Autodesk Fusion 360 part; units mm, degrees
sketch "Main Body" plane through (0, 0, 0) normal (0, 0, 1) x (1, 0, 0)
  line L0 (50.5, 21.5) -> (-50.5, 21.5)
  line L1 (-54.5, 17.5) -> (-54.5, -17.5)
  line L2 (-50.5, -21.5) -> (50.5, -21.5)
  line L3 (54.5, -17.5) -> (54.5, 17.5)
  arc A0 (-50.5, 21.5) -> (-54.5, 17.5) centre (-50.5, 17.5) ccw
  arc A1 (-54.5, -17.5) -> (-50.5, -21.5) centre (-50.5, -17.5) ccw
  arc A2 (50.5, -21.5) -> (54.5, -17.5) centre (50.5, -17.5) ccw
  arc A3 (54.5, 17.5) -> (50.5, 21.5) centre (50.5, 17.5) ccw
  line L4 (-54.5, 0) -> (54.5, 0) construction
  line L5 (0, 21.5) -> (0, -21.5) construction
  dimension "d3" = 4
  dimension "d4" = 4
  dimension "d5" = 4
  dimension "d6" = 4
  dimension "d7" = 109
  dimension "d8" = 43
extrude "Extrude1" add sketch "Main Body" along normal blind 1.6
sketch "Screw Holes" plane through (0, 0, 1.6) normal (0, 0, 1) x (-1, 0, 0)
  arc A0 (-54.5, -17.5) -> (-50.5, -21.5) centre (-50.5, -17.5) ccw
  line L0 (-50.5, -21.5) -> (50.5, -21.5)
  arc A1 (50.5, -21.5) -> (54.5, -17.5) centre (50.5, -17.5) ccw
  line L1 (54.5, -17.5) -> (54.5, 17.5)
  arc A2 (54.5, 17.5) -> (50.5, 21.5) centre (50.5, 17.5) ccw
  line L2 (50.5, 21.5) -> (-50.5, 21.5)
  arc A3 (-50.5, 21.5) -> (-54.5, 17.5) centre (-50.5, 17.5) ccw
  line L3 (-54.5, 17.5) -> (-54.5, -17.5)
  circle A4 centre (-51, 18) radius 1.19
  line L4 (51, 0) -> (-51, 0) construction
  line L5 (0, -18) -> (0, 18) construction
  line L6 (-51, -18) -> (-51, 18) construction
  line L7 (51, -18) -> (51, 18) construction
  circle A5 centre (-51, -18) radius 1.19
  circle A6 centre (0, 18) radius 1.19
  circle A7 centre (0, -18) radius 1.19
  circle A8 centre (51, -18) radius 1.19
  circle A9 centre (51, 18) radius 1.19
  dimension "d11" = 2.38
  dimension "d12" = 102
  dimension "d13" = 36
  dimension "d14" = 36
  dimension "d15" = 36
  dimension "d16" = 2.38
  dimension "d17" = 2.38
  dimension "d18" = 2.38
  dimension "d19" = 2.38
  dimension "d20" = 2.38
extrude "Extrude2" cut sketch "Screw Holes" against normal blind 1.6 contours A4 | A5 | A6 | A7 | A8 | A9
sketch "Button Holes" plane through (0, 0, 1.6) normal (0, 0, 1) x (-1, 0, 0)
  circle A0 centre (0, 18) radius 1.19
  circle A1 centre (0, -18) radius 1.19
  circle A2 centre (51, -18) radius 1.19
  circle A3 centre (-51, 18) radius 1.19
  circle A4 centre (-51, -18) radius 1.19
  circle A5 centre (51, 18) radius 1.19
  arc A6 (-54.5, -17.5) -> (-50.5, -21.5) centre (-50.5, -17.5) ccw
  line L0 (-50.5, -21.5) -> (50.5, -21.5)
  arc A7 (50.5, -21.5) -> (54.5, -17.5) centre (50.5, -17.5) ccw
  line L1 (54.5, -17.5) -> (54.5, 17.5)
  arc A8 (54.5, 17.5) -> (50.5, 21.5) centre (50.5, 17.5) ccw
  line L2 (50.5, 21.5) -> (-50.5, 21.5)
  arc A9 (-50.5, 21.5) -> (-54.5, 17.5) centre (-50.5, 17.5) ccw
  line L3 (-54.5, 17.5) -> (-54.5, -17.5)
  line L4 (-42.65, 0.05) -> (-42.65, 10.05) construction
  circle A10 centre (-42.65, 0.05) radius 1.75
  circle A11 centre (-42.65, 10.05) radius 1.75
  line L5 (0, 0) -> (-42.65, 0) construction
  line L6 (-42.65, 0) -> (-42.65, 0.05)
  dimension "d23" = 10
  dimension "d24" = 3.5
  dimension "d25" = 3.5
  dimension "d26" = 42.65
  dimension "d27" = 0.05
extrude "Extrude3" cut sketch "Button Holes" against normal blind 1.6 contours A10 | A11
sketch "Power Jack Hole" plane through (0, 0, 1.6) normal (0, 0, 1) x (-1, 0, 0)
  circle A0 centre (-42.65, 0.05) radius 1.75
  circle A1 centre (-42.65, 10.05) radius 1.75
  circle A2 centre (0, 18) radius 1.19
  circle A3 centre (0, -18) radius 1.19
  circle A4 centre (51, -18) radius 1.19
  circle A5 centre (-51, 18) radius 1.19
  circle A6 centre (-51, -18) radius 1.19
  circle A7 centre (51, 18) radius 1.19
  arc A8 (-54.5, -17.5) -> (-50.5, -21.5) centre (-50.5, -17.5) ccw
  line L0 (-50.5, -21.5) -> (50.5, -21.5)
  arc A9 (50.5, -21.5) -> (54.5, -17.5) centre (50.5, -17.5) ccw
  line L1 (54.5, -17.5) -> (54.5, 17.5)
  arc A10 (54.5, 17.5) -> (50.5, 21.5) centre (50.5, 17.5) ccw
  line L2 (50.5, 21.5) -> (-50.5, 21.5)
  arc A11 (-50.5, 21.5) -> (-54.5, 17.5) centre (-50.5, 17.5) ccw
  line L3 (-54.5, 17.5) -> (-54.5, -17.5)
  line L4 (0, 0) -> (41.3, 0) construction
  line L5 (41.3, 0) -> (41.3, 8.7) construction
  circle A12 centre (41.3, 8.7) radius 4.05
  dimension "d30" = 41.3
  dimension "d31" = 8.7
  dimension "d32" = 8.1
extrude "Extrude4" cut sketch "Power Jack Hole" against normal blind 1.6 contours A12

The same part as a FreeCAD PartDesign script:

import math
import FreeCAD as App
import Part
import Sketcher
from FreeCAD import Vector

doc = App.newDocument("Part")
body = doc.addObject("PartDesign::Body", "Body")

sketch1 = body.newObject("Sketcher::SketchObject", "Sketch")
sketch1.AttachmentSupport = (doc.getObject("XY_Plane"), [""])
sketch1.MapMode = "FlatFace"
sketch1.addGeometry([
    Part.ArcOfCircle(Part.Circle(Vector(50.5, 17.5, 0), Vector(0, 0, 1), 4), math.radians(0), math.radians(90)),
    Part.LineSegment(Vector(50.5, 21.5, 0), Vector(-50.5, 21.5, 0)),
    Part.ArcOfCircle(Part.Circle(Vector(-50.5, 17.5, 0), Vector(0, 0, 1), 4), math.radians(90), math.radians(180)),
    Part.LineSegment(Vector(-54.5, 17.5, 0), Vector(-54.5, -17.5, 0)),
    Part.ArcOfCircle(Part.Circle(Vector(-50.5, -17.5, 0), Vector(0, 0, 1), 4), math.radians(180), math.radians(270)),
    Part.LineSegment(Vector(-50.5, -21.5, 0), Vector(50.5, -21.5, 0)),
    Part.ArcOfCircle(Part.Circle(Vector(50.5, -17.5, 0), Vector(0, 0, 1), 4), math.radians(-90), math.radians(0)),
    Part.LineSegment(Vector(54.5, -17.5, 0), Vector(54.5, 17.5, 0)),
], False)
sketch1.addConstraint([
    Sketcher.Constraint("Tangent", 0, 2, 1, 1),
    Sketcher.Constraint("Tangent", 1, 2, 2, 1),
    Sketcher.Constraint("Tangent", 2, 2, 3, 1),
    Sketcher.Constraint("Tangent", 3, 2, 4, 1),
    Sketcher.Constraint("Tangent", 4, 2, 5, 1),
    Sketcher.Constraint("Tangent", 5, 2, 6, 1),
    Sketcher.Constraint("Tangent", 6, 2, 7, 1),
    Sketcher.Constraint("Tangent", 7, 2, 0, 1),
    Sketcher.Constraint("Horizontal", 1),
    Sketcher.Constraint("Vertical", 3),
    Sketcher.Constraint("Horizontal", 5),
    Sketcher.Constraint("Vertical", 7),
    Sketcher.Constraint("Equal", 0, 2),
    Sketcher.Constraint("Equal", 2, 4),
    Sketcher.Constraint("Equal", 4, 6),
    Sketcher.Constraint("Symmetric", 0, 3, 4, 3, -1, 1),
    Sketcher.Constraint("Radius", 0, 4.0),
    Sketcher.Constraint("DistanceY", 4, 2, 1, 2, 43.0),
    Sketcher.Constraint("DistanceX", 1, 2, 1, 1, 101.0),
])
pad1 = body.newObject("PartDesign::Pad", "Pad")
pad1.Profile = sketch1
pad1.Length = 1.6

sketch2 = body.newObject("Sketcher::SketchObject", "Sketch001")
sketch2.AttachmentSupport = (doc.getObject("XY_Plane"), [""])
sketch2.MapMode = "FlatFace"
sketch2.AttachmentOffset = App.Placement(Vector(0, 0, 1.6), App.Rotation())
sketch2.addGeometry([
    Part.Circle(Vector(51, -18, 0), Vector(0, 0, 1), 1.2),
    Part.Circle(Vector(51, 18, 0), Vector(0, 0, 1), 1.2),
    Part.Circle(Vector(0, -18, 0), Vector(0, 0, 1), 1.2),
    Part.Circle(Vector(0, 18, 0), Vector(0, 0, 1), 1.2),
    Part.Circle(Vector(-51, 18, 0), Vector(0, 0, 1), 1.2),
    Part.Circle(Vector(-51, -18, 0), Vector(0, 0, 1), 1.2),
], False)
sketch2.addConstraint([
    Sketcher.Constraint("Equal", 0, 1),
    Sketcher.Constraint("Equal", 1, 2),
    Sketcher.Constraint("Equal", 2, 3),
    Sketcher.Constraint("Equal", 3, 4),
    Sketcher.Constraint("Equal", 4, 5),
    Sketcher.Constraint("Symmetric", 2, 3, 3, 3, -1, 1),
    Sketcher.Constraint("Symmetric", 0, 3, 4, 3, -1, 1),
    Sketcher.Constraint("Symmetric", 1, 3, 5, 3, -1, 1),
    Sketcher.Constraint("Symmetric", 1, 3, 4, 3, -2),
    Sketcher.Constraint("PointOnObject", 2, 3, -2),
    Sketcher.Constraint("Horizontal", 0, 3, 2, 3),
    Sketcher.Constraint("Diameter", 0, 2.38),
    Sketcher.Constraint("DistanceY", 0, 3, 1, 3, 36.0),
    Sketcher.Constraint("DistanceX", 4, 3, 1, 3, 102.0),
])
pocket1 = body.newObject("PartDesign::Pocket", "Pocket")
pocket1.Profile = sketch2
pocket1.Length = 1.6

sketch3 = body.newObject("Sketcher::SketchObject", "Sketch002")
sketch3.AttachmentSupport = (doc.getObject("XY_Plane"), [""])
sketch3.MapMode = "FlatFace"
sketch3.AttachmentOffset = App.Placement(Vector(0, 0, 1.6), App.Rotation())
sketch3.addGeometry([
    Part.Circle(Vector(42.6, -0.1, 0), Vector(0, 0, 1), 1.8),
    Part.Circle(Vector(42.6, -10.1, 0), Vector(0, 0, 1), 1.8),
], False)
sketch3.addConstraint([
    Sketcher.Constraint("Equal", 0, 1),
    Sketcher.Constraint("Vertical", 0, 3, 1, 3),
    Sketcher.Constraint("Diameter", 0, 3.5),
    Sketcher.Constraint("DistanceY", 1, 3, 0, 3, 10.0),
    Sketcher.Constraint("DistanceX", -1, 1, 0, 3, 42.65),
    Sketcher.Constraint("DistanceY", 0, 3, -1, 1, 0.05),
])
pocket2 = body.newObject("PartDesign::Pocket", "Pocket001")
pocket2.Profile = sketch3
pocket2.Length = 1.6

sketch4 = body.newObject("Sketcher::SketchObject", "Sketch003")
sketch4.AttachmentSupport = (doc.getObject("XY_Plane"), [""])
sketch4.MapMode = "FlatFace"
sketch4.AttachmentOffset = App.Placement(Vector(0, 0, 1.6), App.Rotation())
sketch4.addGeometry(Part.Circle(Vector(-41.3, -8.7, 0), Vector(0, 0, 1), 4), False)
sketch4.addConstraint([
    Sketcher.Constraint("Diameter", 0, 8.1),
    Sketcher.Constraint("DistanceX", 0, 3, -1, 1, 41.3),
    Sketcher.Constraint("DistanceY", 0, 3, -1, 1, 8.7),
])
pocket3 = body.newObject("PartDesign::Pocket", "Pocket002")
pocket3.Profile = sketch4
pocket3.Length = 1.6

doc.recompute()
